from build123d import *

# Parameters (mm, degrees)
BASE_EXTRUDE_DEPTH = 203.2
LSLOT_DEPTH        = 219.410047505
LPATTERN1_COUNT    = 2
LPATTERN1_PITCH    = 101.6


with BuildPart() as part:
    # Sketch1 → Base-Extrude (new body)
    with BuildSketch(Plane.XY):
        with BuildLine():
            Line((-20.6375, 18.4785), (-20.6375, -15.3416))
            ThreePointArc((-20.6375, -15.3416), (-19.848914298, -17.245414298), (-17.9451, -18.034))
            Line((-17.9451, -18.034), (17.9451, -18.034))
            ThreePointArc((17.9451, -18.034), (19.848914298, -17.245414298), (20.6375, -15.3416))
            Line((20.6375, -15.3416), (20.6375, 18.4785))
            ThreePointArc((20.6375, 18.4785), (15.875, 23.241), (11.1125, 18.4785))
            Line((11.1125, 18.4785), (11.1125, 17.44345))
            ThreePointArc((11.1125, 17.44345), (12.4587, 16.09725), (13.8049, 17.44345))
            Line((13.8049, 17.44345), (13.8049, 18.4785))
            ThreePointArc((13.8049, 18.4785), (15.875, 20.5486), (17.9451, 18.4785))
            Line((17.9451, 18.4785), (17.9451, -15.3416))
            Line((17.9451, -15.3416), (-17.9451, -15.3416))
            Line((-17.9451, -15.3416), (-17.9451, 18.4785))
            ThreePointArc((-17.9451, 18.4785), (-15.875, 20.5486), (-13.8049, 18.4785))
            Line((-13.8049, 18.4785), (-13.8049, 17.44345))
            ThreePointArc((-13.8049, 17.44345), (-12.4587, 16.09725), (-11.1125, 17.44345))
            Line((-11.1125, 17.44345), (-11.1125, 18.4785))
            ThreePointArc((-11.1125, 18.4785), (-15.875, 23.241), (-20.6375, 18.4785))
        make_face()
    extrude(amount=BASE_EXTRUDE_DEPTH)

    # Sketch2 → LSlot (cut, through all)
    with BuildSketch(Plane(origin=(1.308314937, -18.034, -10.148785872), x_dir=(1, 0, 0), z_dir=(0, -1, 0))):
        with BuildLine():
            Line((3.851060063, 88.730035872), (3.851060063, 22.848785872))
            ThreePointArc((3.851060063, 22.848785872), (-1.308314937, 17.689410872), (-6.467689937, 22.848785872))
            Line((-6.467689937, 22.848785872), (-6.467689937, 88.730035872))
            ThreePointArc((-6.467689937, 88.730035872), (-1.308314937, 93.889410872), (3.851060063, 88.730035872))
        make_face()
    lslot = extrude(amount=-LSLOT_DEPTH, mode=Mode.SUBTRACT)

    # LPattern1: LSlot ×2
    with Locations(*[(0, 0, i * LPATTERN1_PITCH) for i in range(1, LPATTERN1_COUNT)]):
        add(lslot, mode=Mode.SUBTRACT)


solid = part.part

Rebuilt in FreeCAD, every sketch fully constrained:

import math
import FreeCAD as App
import Part
import Sketcher

V = App.Vector
Q = App.Units.Quantity

doc = App.newDocument("Part")
body = doc.addObject("PartDesign::Body", "Body")

sketch1 = doc.addObject("Sketcher::SketchObject", "Sketch")
body.addObject(sketch1)
sketch1.AttachmentSupport = (doc.XY_Plane, [""])
sketch1.MapMode = "FlatFace"
sketch1.addGeometry([
    Part.LineSegment(V(-20.6, 18.5, 0), V(-20.6, -15.3, 0)),
    Part.ArcOfCircle(Part.Circle(V(-17.9, -15.3, 0), V(0, 0, 1), 2.7), math.radians(180), math.radians(270)),
    Part.LineSegment(V(-17.9, -18, 0), V(17.9, -18, 0)),
    Part.ArcOfCircle(Part.Circle(V(17.9, -15.3, 0), V(0, 0, 1), 2.7), math.radians(-90), math.radians(0)),
    Part.LineSegment(V(20.6, -15.3, 0), V(20.6, 18.5, 0)),
    Part.ArcOfCircle(Part.Circle(V(15.9, 18.5, 0), V(0, 0, 1), 4.8), math.radians(0), math.radians(180)),
    Part.LineSegment(V(11.1, 18.5, 0), V(11.1, 17.4, 0)),
    Part.ArcOfCircle(Part.Circle(V(12.5, 17.4, 0), V(0, 0, 1), 1.3), math.radians(180), math.radians(360)),
    Part.LineSegment(V(13.8, 17.4, 0), V(13.8, 18.5, 0)),
    Part.ArcOfCircle(Part.Circle(V(15.9, 18.5, 0), V(0, 0, 1), 2.1), math.radians(0), math.radians(180)),
    Part.LineSegment(V(17.9, 18.5, 0), V(17.9, -15.3, 0)),
    Part.LineSegment(V(17.9, -15.3, 0), V(-17.9, -15.3, 0)),
    Part.LineSegment(V(-17.9, -15.3, 0), V(-17.9, 18.5, 0)),
    Part.ArcOfCircle(Part.Circle(V(-15.9, 18.5, 0), V(0, 0, 1), 2.1), math.radians(0), math.radians(180)),
    Part.LineSegment(V(-13.8, 18.5, 0), V(-13.8, 17.4, 0)),
    Part.ArcOfCircle(Part.Circle(V(-12.5, 17.4, 0), V(0, 0, 1), 1.3), math.radians(180), math.radians(360)),
    Part.LineSegment(V(-11.1, 17.4, 0), V(-11.1, 18.5, 0)),
    Part.ArcOfCircle(Part.Circle(V(-15.9, 18.5, 0), V(0, 0, 1), 4.8), math.radians(0), math.radians(180)),
], False)
sketch1.addConstraint([
    Sketcher.Constraint("Tangent", 0, 2, 1, 1),
    Sketcher.Constraint("Tangent", 1, 2, 2, 1),
    Sketcher.Constraint("Tangent", 2, 2, 3, 1),
    Sketcher.Constraint("Tangent", 3, 2, 4, 1),
    Sketcher.Constraint("Tangent", 4, 2, 5, 1),
    Sketcher.Constraint("Tangent", 5, 2, 6, 1),
    Sketcher.Constraint("Tangent", 6, 2, 7, 1),
    Sketcher.Constraint("Tangent", 7, 2, 8, 1),
    Sketcher.Constraint("Tangent", 8, 2, 9, 2),
    Sketcher.Constraint("Tangent", 9, 1, 10, 1),
    Sketcher.Constraint("Coincident", 10, 2, 11, 1),
    Sketcher.Constraint("Coincident", 11, 2, 12, 1),
    Sketcher.Constraint("Tangent", 12, 2, 13, 2),
    Sketcher.Constraint("Tangent", 13, 1, 14, 1),
    Sketcher.Constraint("Tangent", 14, 2, 15, 1),
    Sketcher.Constraint("Tangent", 15, 2, 16, 1),
    Sketcher.Constraint("Tangent", 16, 2, 17, 1),
    Sketcher.Constraint("Tangent", 17, 2, 0, 1),
    Sketcher.Constraint("Vertical", 0),
    Sketcher.Constraint("Horizontal", 2),
    Sketcher.Constraint("Vertical", 4),
    Sketcher.Constraint("Vertical", 6),
    Sketcher.Constraint("Vertical", 8),
    Sketcher.Constraint("Vertical", 10),
    Sketcher.Constraint("Horizontal", 11),
    Sketcher.Constraint("Vertical", 12),
    Sketcher.Constraint("Vertical", 14),
    Sketcher.Constraint("Vertical", 16),
    Sketcher.Constraint("Coincident", 9, 3, 5, 3),
    Sketcher.Constraint("Coincident", 17, 3, 13, 3),
    Sketcher.Constraint("Coincident", 10, 2, 3, 3),
    Sketcher.Constraint("Coincident", 11, 2, 1, 3),
    Sketcher.Constraint("Equal", 9, 13),
    Sketcher.Constraint("Symmetric", 5, 3, 13, 3, -2),
    Sketcher.Constraint("Horizontal", 7, 3, 15, 3),
    Sketcher.Constraint("Radius", 1, Q("0.106 in")),
    Sketcher.Constraint("Radius", 5, Q("0.1875 in")),
    Sketcher.Constraint("DistanceX", 2, 1, 2, 2, Q("1.413 in")),
    Sketcher.Constraint("DistanceY", 1, 2, -1, 1, Q("0.71 in")),
    Sketcher.Constraint("DistanceY", 0, 2, 0, 1, Q("1.3315 in")),
    Sketcher.Constraint("DistanceY", 6, 2, 6, 1, Q("1.03505 mm")),
])
pad1 = doc.addObject("PartDesign::Pad", "Pad")
body.addObject(pad1)
pad1.Profile = sketch1
pad1.Length = Q("8 in")

sketch2 = doc.addObject("Sketcher::SketchObject", "Sketch001")
body.addObject(sketch2)
sketch2.AttachmentSupport = (doc.XZ_Plane, [""])
sketch2.MapMode = "FlatFace"
sketch2.AttachmentOffset = App.Placement(V(0, 0, 0.71 * 25.4), App.Rotation())
sketch2.addGeometry([
    Part.LineSegment(V(5, 13, 0), V(5, 79, 0)),
    Part.ArcOfCircle(Part.Circle(V(0, 79, 0), V(0, 0, 1), 5), math.radians(0), math.radians(180)),
    Part.LineSegment(V(-5, 79, 0), V(-5, 13, 0)),
    Part.ArcOfCircle(Part.Circle(V(0, 13, 0), V(0, 0, 1), 5), math.radians(180), math.radians(360)),
], False)
sketch2.addConstraint([
    Sketcher.Constraint("Tangent", 0, 2, 1, 1),
    Sketcher.Constraint("Tangent", 1, 2, 2, 1),
    Sketcher.Constraint("Tangent", 2, 2, 3, 1),
    Sketcher.Constraint("Tangent", 3, 2, 0, 1),
    Sketcher.Constraint("Vertical", 0),
    Sketcher.Constraint("Vertical", 2),
    Sketcher.Constraint("PointOnObject", 1, 3, -2),
    Sketcher.Constraint("Radius", 1, Q("0.203125 in")),
    Sketcher.Constraint("DistanceY", -1, 1, 3, 3, Q("0.5 in")),
    Sketcher.Constraint("DistanceY", 0, 1, 0, 2, Q("2.59375 in")),
])
pocket1 = doc.addObject("PartDesign::Pocket", "Pocket")
body.addObject(pocket1)
pocket1.Profile = sketch2
pocket1.Type = "ThroughAll"
doc.recompute()

linearpattern = doc.addObject("PartDesign::LinearPattern", "LinearPattern")
body.addObject(linearpattern)
linearpattern.Originals = [pocket1]
linearpattern.Direction = (doc.Z_Axis, [""])
linearpattern.Mode = "offset"
linearpattern.Offset = Q("4 in")
linearpattern.Occurrences = 2
body.Tip = linearpattern

doc.recompute()
